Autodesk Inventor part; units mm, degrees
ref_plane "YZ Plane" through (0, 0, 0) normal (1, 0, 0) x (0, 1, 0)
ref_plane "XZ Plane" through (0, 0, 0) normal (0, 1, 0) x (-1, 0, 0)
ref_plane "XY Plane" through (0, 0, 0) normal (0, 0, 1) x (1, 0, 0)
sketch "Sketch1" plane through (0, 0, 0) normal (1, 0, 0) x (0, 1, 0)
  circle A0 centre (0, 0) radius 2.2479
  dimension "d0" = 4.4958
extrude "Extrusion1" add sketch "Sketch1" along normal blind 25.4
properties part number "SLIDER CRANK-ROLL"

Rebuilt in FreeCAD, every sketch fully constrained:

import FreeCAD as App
import Part
import Sketcher
Q = App.Units.Quantity

doc = App.newDocument("Part")
body = doc.addObject("PartDesign::Body", "Body")

sketch1 = body.newObject("Sketcher::SketchObject", "Sketch")
sketch1.AttachmentSupport = (doc.getObject("YZ_Plane"), [""])
sketch1.MapMode = "FlatFace"
sketch1.addGeometry(Part.Circle(App.Vector(0, 0, 0), App.Vector(0, 0, 1), 2.2479), False)
sketch1.addConstraint([
    Sketcher.Constraint("Coincident", 0, 3, -1, 1),
    Sketcher.Constraint("Diameter", 0, Q("0.177 in")),
])
pad1 = body.newObject("PartDesign::Pad", "Pad")
pad1.Profile = sketch1
pad1.Length = Q("1 in")

doc.recompute()
